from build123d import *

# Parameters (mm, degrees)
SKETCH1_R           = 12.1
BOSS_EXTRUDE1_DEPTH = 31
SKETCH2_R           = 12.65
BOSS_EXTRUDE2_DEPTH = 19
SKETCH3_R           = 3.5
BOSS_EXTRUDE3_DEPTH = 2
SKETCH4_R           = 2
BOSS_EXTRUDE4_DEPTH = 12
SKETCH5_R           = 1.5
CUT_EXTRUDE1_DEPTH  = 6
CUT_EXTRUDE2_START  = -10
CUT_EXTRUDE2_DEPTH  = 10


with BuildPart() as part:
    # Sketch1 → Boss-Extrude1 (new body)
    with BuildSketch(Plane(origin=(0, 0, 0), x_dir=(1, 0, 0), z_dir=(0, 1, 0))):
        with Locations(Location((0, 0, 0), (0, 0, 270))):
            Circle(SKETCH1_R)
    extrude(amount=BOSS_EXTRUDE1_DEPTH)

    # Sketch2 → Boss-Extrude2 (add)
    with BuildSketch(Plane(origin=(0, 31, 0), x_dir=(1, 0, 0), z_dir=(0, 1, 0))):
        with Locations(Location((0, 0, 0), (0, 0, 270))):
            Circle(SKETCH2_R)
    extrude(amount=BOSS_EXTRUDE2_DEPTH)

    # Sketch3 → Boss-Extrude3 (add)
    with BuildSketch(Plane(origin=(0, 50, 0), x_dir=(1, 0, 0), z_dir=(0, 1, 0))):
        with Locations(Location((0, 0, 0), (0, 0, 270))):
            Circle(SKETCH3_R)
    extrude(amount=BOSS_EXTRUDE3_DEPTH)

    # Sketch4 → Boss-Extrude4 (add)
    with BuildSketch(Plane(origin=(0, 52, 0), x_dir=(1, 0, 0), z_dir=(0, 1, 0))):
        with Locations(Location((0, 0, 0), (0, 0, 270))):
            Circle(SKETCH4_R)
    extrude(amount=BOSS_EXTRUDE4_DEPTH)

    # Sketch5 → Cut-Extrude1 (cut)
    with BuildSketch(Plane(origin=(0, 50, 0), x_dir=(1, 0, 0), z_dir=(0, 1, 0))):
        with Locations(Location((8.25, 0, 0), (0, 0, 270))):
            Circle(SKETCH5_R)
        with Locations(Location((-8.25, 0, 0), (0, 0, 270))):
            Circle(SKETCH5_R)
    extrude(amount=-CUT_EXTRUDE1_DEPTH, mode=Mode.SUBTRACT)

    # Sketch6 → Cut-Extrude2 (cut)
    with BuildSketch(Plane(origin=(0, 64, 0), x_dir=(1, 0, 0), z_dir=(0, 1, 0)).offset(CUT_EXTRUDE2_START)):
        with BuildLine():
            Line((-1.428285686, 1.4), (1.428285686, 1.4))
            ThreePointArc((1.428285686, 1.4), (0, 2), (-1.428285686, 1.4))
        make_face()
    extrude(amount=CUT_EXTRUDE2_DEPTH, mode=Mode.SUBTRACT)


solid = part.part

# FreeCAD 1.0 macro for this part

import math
import FreeCAD as App
import Part
import Sketcher

V = App.Vector
Q = App.Units.Quantity

doc = App.newDocument("Part")
body = doc.addObject("PartDesign::Body", "Body")

sketch1 = body.newObject("Sketcher::SketchObject", "Sketch")
sketch1.AttachmentSupport = (doc.getObject("XZ_Plane"), [""])
sketch1.MapMode = "FlatFace"
sketch1.addGeometry(Part.Circle(V(0, 0, 0), V(0, 0, 1), 12), False)
sketch1.addConstraint(Sketcher.Constraint("Coincident", 0, 3, -1, 1))
sketch1.addConstraint(Sketcher.Constraint("Diameter", 0, Q("24.2 mm")))
pad1 = body.newObject("PartDesign::Pad", "Pad")
pad1.Profile = sketch1
pad1.Length = 31
pad1.Reversed = True

sketch2 = body.newObject("Sketcher::SketchObject", "Sketch001")
sketch2.AttachmentSupport = (doc.getObject("XZ_Plane"), [""])
sketch2.MapMode = "FlatFace"
sketch2.AttachmentOffset = App.Placement(V(0, 0, -31), App.Rotation())
sketch2.addGeometry(Part.Circle(V(0, 0, 0), V(0, 0, 1), 13), False)
sketch2.addConstraint(Sketcher.Constraint("Coincident", 0, 3, -1, 1))
sketch2.addConstraint(Sketcher.Constraint("Diameter", 0, Q("25.3 mm")))
pad2 = body.newObject("PartDesign::Pad", "Pad001")
pad2.Profile = sketch2
pad2.Length = 19
pad2.Reversed = True

sketch3 = body.newObject("Sketcher::SketchObject", "Sketch002")
sketch3.AttachmentSupport = (doc.getObject("XZ_Plane"), [""])
sketch3.MapMode = "FlatFace"
sketch3.AttachmentOffset = App.Placement(V(0, 0, -50), App.Rotation())
sketch3.addGeometry(Part.Circle(V(0, 0, 0), V(0, 0, 1), 3.5), False)
sketch3.addConstraint(Sketcher.Constraint("Coincident", 0, 3, -1, 1))
sketch3.addConstraint(Sketcher.Constraint("Diameter", 0, Q("7 mm")))
pad3 = body.newObject("PartDesign::Pad", "Pad002")
pad3.Profile = sketch3
pad3.Length = 2
pad3.Reversed = True

sketch4 = body.newObject("Sketcher::SketchObject", "Sketch003")
sketch4.AttachmentSupport = (doc.getObject("XZ_Plane"), [""])
sketch4.MapMode = "FlatFace"
sketch4.AttachmentOffset = App.Placement(V(0, 0, -52), App.Rotation())
sketch4.addGeometry(Part.Circle(V(0, 0, 0), V(0, 0, 1), 2), False)
sketch4.addConstraint(Sketcher.Constraint("Coincident", 0, 3, -1, 1))
sketch4.addConstraint(Sketcher.Constraint("Diameter", 0, Q("4 mm")))
pad4 = body.newObject("PartDesign::Pad", "Pad003")
pad4.Profile = sketch4
pad4.Length = 12
pad4.Reversed = True

sketch5 = body.newObject("Sketcher::SketchObject", "Sketch004")
sketch5.AttachmentSupport = (doc.getObject("XZ_Plane"), [""])
sketch5.MapMode = "FlatFace"
sketch5.AttachmentOffset = App.Placement(V(0, 0, -50), App.Rotation())
sketch5.addGeometry(Part.Circle(V(8.2, 0, 0), V(0, 0, 1), 1.5), False)
sketch5.addGeometry(Part.Circle(V(-8.2, 0, 0), V(0, 0, 1), 1.5), False)
sketch5.addConstraint(Sketcher.Constraint("Equal", 0, 1))
sketch5.addConstraint(Sketcher.Constraint("Symmetric", 0, 3, 1, 3, -1, 1))
sketch5.addConstraint(Sketcher.Constraint("PointOnObject", 0, 3, -1))
sketch5.addConstraint(Sketcher.Constraint("Diameter", 0, Q("3 mm")))
sketch5.addConstraint(Sketcher.Constraint("DistanceX", 1, 3, 0, 3, Q("16.5 mm")))
pocket1 = body.newObject("PartDesign::Pocket", "Pocket")
pocket1.Profile = sketch5
pocket1.Length = 6
pocket1.Reversed = True

sketch6 = body.newObject("Sketcher::SketchObject", "Sketch005")
sketch6.AttachmentSupport = (doc.getObject("XZ_Plane"), [""])
sketch6.MapMode = "FlatFace"
sketch6.AttachmentOffset = App.Placement(V(0, 0, -54), App.Rotation())
sketch6.addGeometry(Part.LineSegment(V(-1.4, -1.4, 0), V(1.4, -1.4, 0)), False)
sketch6.addGeometry(Part.ArcOfCircle(Part.Circle(V(0, 0, 0), V(0, 0, 1), 2), math.radians(-136), math.radians(-44)), False)
sketch6.addConstraint(Sketcher.Constraint("Coincident", 0, 1, 1, 1))
sketch6.addConstraint(Sketcher.Constraint("Coincident", 1, 2, 0, 2))
sketch6.addConstraint(Sketcher.Constraint("Horizontal", 0))
sketch6.addConstraint(Sketcher.Constraint("Coincident", 1, 3, -1, 1))
sketch6.addConstraint(Sketcher.Constraint("Radius", 1, Q("2 mm")))
sketch6.addConstraint(Sketcher.Constraint("DistanceY", 0, 1, -1, 1, Q("1.4 mm")))
pocket2 = body.newObject("PartDesign::Pocket", "Pocket001")
pocket2.Profile = sketch6
pocket2.Length = 10

doc.recompute()
